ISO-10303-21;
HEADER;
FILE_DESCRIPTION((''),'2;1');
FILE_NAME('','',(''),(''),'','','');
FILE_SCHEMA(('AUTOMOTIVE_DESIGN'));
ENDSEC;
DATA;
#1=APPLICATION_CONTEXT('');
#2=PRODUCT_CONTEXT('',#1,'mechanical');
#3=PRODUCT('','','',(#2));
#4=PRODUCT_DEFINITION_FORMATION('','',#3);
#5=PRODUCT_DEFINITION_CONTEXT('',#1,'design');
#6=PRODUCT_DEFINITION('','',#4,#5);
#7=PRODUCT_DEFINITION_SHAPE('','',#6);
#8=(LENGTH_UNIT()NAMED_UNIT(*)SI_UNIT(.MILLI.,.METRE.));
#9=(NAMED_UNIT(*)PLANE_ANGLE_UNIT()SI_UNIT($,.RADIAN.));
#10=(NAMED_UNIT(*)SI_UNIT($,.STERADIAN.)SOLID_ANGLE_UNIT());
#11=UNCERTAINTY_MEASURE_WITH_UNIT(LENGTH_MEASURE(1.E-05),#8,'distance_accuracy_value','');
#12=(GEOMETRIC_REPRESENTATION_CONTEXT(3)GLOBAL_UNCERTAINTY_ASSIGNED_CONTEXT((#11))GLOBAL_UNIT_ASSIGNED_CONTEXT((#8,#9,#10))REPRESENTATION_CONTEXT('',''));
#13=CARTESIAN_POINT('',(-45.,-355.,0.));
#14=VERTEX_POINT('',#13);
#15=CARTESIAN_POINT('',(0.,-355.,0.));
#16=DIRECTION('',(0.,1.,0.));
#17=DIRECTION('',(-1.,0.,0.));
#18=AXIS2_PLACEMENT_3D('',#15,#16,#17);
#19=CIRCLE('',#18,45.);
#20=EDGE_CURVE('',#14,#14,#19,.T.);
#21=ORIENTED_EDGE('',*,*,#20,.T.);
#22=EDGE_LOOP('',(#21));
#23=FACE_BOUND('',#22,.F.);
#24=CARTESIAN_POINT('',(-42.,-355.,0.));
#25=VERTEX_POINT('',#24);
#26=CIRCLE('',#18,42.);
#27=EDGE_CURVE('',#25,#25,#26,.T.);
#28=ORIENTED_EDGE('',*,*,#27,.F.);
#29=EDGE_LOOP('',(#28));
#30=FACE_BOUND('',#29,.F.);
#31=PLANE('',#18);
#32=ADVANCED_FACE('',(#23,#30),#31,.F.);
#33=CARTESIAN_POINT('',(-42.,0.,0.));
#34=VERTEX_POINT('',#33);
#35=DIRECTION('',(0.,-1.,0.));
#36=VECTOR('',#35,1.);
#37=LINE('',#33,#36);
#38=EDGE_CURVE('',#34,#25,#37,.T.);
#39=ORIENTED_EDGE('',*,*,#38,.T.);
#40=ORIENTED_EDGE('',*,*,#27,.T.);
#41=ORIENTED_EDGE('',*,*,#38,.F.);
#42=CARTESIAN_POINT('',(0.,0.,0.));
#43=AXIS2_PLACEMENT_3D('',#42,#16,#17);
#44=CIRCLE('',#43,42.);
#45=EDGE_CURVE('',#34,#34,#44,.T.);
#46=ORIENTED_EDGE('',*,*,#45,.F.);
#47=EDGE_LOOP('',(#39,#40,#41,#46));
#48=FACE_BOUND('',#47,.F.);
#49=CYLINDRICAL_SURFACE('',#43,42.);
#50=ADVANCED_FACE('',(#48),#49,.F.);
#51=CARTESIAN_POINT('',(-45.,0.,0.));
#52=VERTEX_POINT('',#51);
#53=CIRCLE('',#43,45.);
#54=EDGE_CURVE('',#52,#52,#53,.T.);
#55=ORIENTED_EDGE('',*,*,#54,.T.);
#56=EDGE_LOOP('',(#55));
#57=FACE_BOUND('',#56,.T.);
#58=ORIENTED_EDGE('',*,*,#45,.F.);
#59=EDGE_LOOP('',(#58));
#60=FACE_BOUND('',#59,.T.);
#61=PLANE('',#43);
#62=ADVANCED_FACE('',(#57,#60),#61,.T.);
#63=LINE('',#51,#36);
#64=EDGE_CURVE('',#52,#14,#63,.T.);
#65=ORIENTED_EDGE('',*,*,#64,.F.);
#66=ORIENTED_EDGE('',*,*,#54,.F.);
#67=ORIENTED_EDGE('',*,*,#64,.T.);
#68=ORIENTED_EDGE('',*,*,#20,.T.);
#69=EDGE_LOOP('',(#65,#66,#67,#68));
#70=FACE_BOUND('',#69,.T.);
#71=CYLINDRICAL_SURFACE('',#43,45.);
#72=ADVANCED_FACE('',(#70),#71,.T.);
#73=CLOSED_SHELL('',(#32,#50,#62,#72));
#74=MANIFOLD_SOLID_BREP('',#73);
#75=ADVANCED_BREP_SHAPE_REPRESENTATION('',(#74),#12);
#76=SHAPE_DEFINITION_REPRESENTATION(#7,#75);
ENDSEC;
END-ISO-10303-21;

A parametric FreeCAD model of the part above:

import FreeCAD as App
import Part
import Sketcher

V = App.Vector

doc = App.newDocument("Part")
params = doc.addObject("Spreadsheet::Sheet", "Params")
for row, (alias, value) in enumerate([
    ("sketch1_diameter", "90 mm"),
    ("sketch1_diameter2", "84 mm"),
    ("pad1_length", "355 mm"),
], start=1):
    params.set(f"A{row}", alias)
    params.set(f"B{row}", "=" + value)
    params.setAlias(f"B{row}", alias)

body = doc.addObject("PartDesign::Body", "Body")

sketch1 = body.newObject("Sketcher::SketchObject", "Sketch")
sketch1.AttachmentSupport = (doc.getObject("XZ_Plane"), [""])
sketch1.MapMode = "FlatFace"
sketch1.addGeometry(Part.Circle(V(0, 0, 0), V(0, 0, 1), 45), False)
sketch1.addGeometry(Part.Circle(V(0, 0, 0), V(0, 0, 1), 42), False)
sketch1.addConstraint(Sketcher.Constraint("Coincident", 0, 3, -1, 1))
sketch1.addConstraint(Sketcher.Constraint("Coincident", 1, 3, -1, 1))
sketch1.addConstraint(Sketcher.Constraint("Diameter", 0, 90.0))
sketch1.addConstraint(Sketcher.Constraint("Diameter", 1, 84.0))
sketch1.setExpression("Constraints[2]", "Params.sketch1_diameter")
sketch1.setExpression("Constraints[3]", "Params.sketch1_diameter2")
pad1 = body.newObject("PartDesign::Pad", "Pad")
pad1.Profile = sketch1
pad1.setExpression("Length", "Params.pad1_length")

doc.recompute()
